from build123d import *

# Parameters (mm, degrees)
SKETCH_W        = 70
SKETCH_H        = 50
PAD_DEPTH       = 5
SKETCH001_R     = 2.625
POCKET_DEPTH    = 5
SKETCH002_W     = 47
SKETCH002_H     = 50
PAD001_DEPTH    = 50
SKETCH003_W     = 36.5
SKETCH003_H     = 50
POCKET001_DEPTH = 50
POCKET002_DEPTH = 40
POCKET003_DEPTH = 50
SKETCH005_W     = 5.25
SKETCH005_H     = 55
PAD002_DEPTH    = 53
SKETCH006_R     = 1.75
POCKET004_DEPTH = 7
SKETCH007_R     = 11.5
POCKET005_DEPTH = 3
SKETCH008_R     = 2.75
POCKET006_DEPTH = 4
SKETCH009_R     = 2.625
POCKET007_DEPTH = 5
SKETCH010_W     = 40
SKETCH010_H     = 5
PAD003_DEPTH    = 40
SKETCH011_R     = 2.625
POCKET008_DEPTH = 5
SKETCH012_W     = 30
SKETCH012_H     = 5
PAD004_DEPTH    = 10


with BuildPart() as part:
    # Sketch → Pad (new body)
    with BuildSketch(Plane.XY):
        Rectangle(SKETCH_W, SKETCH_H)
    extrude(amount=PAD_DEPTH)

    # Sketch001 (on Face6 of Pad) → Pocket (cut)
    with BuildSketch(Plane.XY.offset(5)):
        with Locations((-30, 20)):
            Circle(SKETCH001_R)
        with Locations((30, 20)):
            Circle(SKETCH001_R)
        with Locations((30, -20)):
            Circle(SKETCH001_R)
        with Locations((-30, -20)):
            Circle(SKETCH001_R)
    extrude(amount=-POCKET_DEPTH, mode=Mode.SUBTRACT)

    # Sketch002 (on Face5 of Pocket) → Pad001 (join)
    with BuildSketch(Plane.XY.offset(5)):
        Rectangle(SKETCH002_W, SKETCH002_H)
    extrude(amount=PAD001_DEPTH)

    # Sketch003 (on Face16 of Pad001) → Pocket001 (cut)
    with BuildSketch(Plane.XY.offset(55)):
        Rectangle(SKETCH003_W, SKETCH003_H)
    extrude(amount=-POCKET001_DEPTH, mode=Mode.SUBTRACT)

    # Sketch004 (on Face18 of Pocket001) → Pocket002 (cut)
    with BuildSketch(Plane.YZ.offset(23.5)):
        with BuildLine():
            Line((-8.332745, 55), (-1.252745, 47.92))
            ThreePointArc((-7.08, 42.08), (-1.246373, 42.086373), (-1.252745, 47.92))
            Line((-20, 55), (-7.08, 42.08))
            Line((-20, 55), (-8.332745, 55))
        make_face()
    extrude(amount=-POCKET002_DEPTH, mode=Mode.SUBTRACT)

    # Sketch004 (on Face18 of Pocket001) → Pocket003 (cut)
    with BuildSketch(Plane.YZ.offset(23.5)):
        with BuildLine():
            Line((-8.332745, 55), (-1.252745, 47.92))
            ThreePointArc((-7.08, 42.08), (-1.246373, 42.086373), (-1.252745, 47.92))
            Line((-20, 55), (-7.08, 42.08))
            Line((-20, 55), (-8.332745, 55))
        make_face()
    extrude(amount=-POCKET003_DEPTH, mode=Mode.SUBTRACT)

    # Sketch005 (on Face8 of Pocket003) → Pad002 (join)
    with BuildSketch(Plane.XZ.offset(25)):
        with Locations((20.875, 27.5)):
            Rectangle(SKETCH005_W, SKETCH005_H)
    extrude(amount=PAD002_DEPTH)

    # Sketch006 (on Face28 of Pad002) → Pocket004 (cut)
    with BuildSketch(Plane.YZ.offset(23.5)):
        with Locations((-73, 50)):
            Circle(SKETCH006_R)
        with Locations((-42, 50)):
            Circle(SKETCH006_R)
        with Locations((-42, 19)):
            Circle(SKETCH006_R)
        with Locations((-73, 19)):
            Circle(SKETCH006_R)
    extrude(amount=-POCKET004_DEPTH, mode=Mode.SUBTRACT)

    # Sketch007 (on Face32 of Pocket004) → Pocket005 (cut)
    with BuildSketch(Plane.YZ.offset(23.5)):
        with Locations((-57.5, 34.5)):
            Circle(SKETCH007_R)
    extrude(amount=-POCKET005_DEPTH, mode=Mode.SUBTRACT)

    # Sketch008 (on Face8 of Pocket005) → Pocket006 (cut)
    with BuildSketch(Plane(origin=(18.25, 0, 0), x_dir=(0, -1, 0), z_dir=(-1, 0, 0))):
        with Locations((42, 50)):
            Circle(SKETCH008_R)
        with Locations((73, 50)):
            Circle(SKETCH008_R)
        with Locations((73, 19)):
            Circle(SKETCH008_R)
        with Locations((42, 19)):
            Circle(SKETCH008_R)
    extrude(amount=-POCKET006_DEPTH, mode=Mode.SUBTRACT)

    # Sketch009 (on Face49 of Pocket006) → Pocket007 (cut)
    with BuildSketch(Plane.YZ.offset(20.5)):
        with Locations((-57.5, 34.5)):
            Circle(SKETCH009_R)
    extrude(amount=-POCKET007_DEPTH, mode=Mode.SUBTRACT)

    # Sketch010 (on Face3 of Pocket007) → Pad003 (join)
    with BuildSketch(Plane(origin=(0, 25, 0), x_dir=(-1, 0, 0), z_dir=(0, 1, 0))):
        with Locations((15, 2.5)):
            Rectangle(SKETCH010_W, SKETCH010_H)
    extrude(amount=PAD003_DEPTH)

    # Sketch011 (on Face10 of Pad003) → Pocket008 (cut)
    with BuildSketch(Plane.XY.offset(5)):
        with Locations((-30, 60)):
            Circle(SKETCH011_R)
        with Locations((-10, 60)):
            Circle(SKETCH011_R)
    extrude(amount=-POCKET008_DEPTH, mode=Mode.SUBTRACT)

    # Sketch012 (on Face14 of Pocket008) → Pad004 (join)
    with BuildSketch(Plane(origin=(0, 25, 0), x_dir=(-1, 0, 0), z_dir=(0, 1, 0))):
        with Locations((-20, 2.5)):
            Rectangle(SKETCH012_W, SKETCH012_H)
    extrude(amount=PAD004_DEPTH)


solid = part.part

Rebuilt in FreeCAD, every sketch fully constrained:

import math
import FreeCAD as App
import Part
import Sketcher
from FreeCAD import Vector
Q = App.Units.Quantity


def add_polygon(sketch, points):
    """Adds a closed chain of lines whose ends are joined by coincident constraints."""
    first, n = sketch.GeometryCount, len(points)
    for a, b in zip(points, points[1:] + points[:1]):
        sketch.addGeometry(Part.LineSegment(App.Vector(*a, 0), App.Vector(*b, 0)), False)
    for i in range(n):
        sketch.addConstraint(Sketcher.Constraint("Coincident", first + i, 2, first + (i + 1) % n, 1))

doc = App.newDocument("Part")
body = doc.addObject("PartDesign::Body", "Body")

# Sketch on XY plane
sketch1 = body.newObject("Sketcher::SketchObject", "Sketch")
sketch1.AttachmentSupport = (doc.getObject("XY_Plane"), [""])
sketch1.MapMode = "FlatFace"
add_polygon(sketch1, [(-35, 25), (-35, -25), (35, -25), (35, 25)])  # lines 0-3
sketch1.addConstraint([
    Sketcher.Constraint("Vertical", 0),
    Sketcher.Constraint("Horizontal", 1),
    Sketcher.Constraint("Vertical", 2),
    Sketcher.Constraint("Horizontal", 3),
    Sketcher.Constraint("Symmetric", 0, 2, 2, 2, -1, 1),
    Sketcher.Constraint("DistanceX", 1, 1, 1, 2, 70.0),
    Sketcher.Constraint("DistanceY", 0, 2, 0, 1, 50.0),
])
pad1 = body.newObject("PartDesign::Pad", "Pad")
pad1.Profile = sketch1
pad1.Length = 5

# Sketch on XY plane
sketch2 = body.newObject("Sketcher::SketchObject", "Sketch001")
sketch2.AttachmentSupport = (doc.getObject("XY_Plane"), [""])
sketch2.MapMode = "FlatFace"
sketch2.AttachmentOffset = App.Placement(Vector(0, 0, 5), App.Rotation())
sketch2.addGeometry([
    Part.Circle(Vector(-30, 20, 0), Vector(0, 0, 1), 2.6),
    Part.Circle(Vector(30, 20, 0), Vector(0, 0, 1), 2.6),
    Part.Circle(Vector(30, -20, 0), Vector(0, 0, 1), 2.6),
    Part.Circle(Vector(-30, -20, 0), Vector(0, 0, 1), 2.6),
], False)
sketch2.addConstraint([
    Sketcher.Constraint("Equal", 0, 1),
    Sketcher.Constraint("Equal", 1, 2),
    Sketcher.Constraint("Equal", 2, 3),
    Sketcher.Constraint("Symmetric", 0, 3, 2, 3, -1, 1),
    Sketcher.Constraint("Symmetric", 1, 3, 3, 3, -1, 1),
    Sketcher.Constraint("Symmetric", 0, 3, 1, 3, -2),
    Sketcher.Constraint("Diameter", 0, 5.25),
    Sketcher.Constraint("DistanceX", 0, 3, -1, 1, 30.0),
    Sketcher.Constraint("DistanceY", -1, 1, 0, 3, 20.0),
])
pocket1 = body.newObject("PartDesign::Pocket", "Pocket")
pocket1.Profile = sketch2
pocket1.Length = 5

# Sketch on XY plane
sketch3 = body.newObject("Sketcher::SketchObject", "Sketch002")
sketch3.AttachmentSupport = (doc.getObject("XY_Plane"), [""])
sketch3.MapMode = "FlatFace"
sketch3.AttachmentOffset = App.Placement(Vector(0, 0, 5), App.Rotation())
add_polygon(sketch3, [(-24, 25), (-24, -25), (24, -25), (24, 25)])  # lines 0-3
sketch3.addConstraint([
    Sketcher.Constraint("Vertical", 0),
    Sketcher.Constraint("Horizontal", 1),
    Sketcher.Constraint("Vertical", 2),
    Sketcher.Constraint("Horizontal", 3),
    Sketcher.Constraint("Symmetric", 0, 2, 2, 2, -1, 1),
    Sketcher.Constraint("DistanceX", 1, 1, 1, 2, 47.0),
    Sketcher.Constraint("DistanceY", 0, 2, 0, 1, 50.0),
])
pad2 = body.newObject("PartDesign::Pad", "Pad001")
pad2.Profile = sketch3
pad2.Length = 50

# Sketch on XY plane
sketch4 = body.newObject("Sketcher::SketchObject", "Sketch003")
sketch4.AttachmentSupport = (doc.getObject("XY_Plane"), [""])
sketch4.MapMode = "FlatFace"
sketch4.AttachmentOffset = App.Placement(Vector(0, 0, 55), App.Rotation())
add_polygon(sketch4, [(-18, 25), (-18, -25), (18, -25), (18, 25)])  # lines 0-3
sketch4.addConstraint([
    Sketcher.Constraint("Vertical", 0),
    Sketcher.Constraint("Horizontal", 1),
    Sketcher.Constraint("Vertical", 2),
    Sketcher.Constraint("Horizontal", 3),
    Sketcher.Constraint("Symmetric", 0, 2, 2, 2, -1, 1),
    Sketcher.Constraint("DistanceY", 0, 2, 0, 1, 50.0),
    Sketcher.Constraint("DistanceX", 1, 1, 1, 2, 36.5),
])
pocket2 = body.newObject("PartDesign::Pocket", "Pocket001")
pocket2.Profile = sketch4
pocket2.Length = 50

# Sketch on YZ plane
sketch5 = body.newObject("Sketcher::SketchObject", "Sketch004")
sketch5.AttachmentSupport = (doc.getObject("YZ_Plane"), [""])
sketch5.MapMode = "FlatFace"
sketch5.AttachmentOffset = App.Placement(Vector(0, 0, 23.5), App.Rotation())
sketch5.addGeometry([
    Part.LineSegment(Vector(-1.3, 47.9, 0), Vector(-8.3, 55, 0)),
    Part.LineSegment(Vector(-8.3, 55, 0), Vector(-20, 55, 0)),
    Part.LineSegment(Vector(-20, 55, 0), Vector(-7.1, 42.1, 0)),
    Part.ArcOfCircle(Part.Circle(Vector(-4.2, 45, 0), Vector(0, 0, 1), 4.1), math.radians(-135), math.radians(45)),
], False)
sketch5.addConstraint([
    Sketcher.Constraint("Coincident", 0, 2, 1, 1),
    Sketcher.Constraint("Coincident", 1, 2, 2, 1),
    Sketcher.Constraint("Coincident", 2, 2, 3, 1),
    Sketcher.Constraint("Coincident", 3, 2, 0, 1),
    Sketcher.Constraint("Horizontal", 1),
    Sketcher.Constraint("Parallel", 0, 2),
    Sketcher.Constraint("Angle", 0, Q("135 deg")),
    Sketcher.Constraint("DistanceY", -1, 1, 3, 3, 45.0),
    Sketcher.Constraint("DistanceY", -1, 1, 0, 2, 55.0),
    Sketcher.Constraint("DistanceX", 1, 2, -1, 1, 20.0),
    Sketcher.Constraint("Radius", 3, 4.125),
    Sketcher.Constraint("DistanceX", 2, 2, -1, 1, 7.08),
    Sketcher.Constraint("DistanceY", -1, 1, 3, 2, 47.92),
])
pocket3 = body.newObject("PartDesign::Pocket", "Pocket002")
pocket3.Profile = sketch5
pocket3.Length = 40

# Sketch on YZ plane
sketch6 = body.newObject("Sketcher::SketchObject", "Sketch005")
sketch6.AttachmentSupport = (doc.getObject("YZ_Plane"), [""])
sketch6.MapMode = "FlatFace"
sketch6.AttachmentOffset = App.Placement(Vector(0, 0, 23.5), App.Rotation())
sketch6.addGeometry([
    Part.LineSegment(Vector(-1.3, 47.9, 0), Vector(-8.3, 55, 0)),
    Part.LineSegment(Vector(-8.3, 55, 0), Vector(-20, 55, 0)),
    Part.LineSegment(Vector(-20, 55, 0), Vector(-7.1, 42.1, 0)),
    Part.ArcOfCircle(Part.Circle(Vector(-4.2, 45, 0), Vector(0, 0, 1), 4.1), math.radians(-135), math.radians(45)),
], False)
sketch6.addConstraint([
    Sketcher.Constraint("Coincident", 0, 2, 1, 1),
    Sketcher.Constraint("Coincident", 1, 2, 2, 1),
    Sketcher.Constraint("Coincident", 2, 2, 3, 1),
    Sketcher.Constraint("Coincident", 3, 2, 0, 1),
    Sketcher.Constraint("Horizontal", 1),
    Sketcher.Constraint("Parallel", 0, 2),
    Sketcher.Constraint("Angle", 0, Q("135 deg")),
    Sketcher.Constraint("DistanceY", -1, 1, 3, 3, 45.0),
    Sketcher.Constraint("DistanceY", -1, 1, 0, 2, 55.0),
    Sketcher.Constraint("DistanceX", 1, 2, -1, 1, 20.0),
    Sketcher.Constraint("Radius", 3, 4.125),
    Sketcher.Constraint("DistanceX", 2, 2, -1, 1, 7.08),
    Sketcher.Constraint("DistanceY", -1, 1, 3, 2, 47.92),
])
pocket4 = body.newObject("PartDesign::Pocket", "Pocket003")
pocket4.Profile = sketch6
pocket4.Length = 50

# Sketch on XZ plane
sketch7 = body.newObject("Sketcher::SketchObject", "Sketch006")
sketch7.AttachmentSupport = (doc.getObject("XZ_Plane"), [""])
sketch7.MapMode = "FlatFace"
sketch7.AttachmentOffset = App.Placement(Vector(0, 0, 25), App.Rotation())
add_polygon(sketch7, [(18, 55), (18, 0), (24, 0), (24, 55)])  # lines 0-3
sketch7.addConstraint([
    Sketcher.Constraint("Vertical", 0),
    Sketcher.Constraint("Horizontal", 1),
    Sketcher.Constraint("Vertical", 2),
    Sketcher.Constraint("Horizontal", 3),
    Sketcher.Constraint("PointOnObject", 0, 2, -1),
    Sketcher.Constraint("DistanceY", 0, 2, 0, 1, 55.0),
    Sketcher.Constraint("DistanceX", 1, 1, 1, 2, 5.25),
    Sketcher.Constraint("DistanceX", -1, 1, 1, 2, 23.5),
])
pad3 = body.newObject("PartDesign::Pad", "Pad002")
pad3.Profile = sketch7
pad3.Length = 53

# Sketch on YZ plane
sketch8 = body.newObject("Sketcher::SketchObject", "Sketch007")
sketch8.AttachmentSupport = (doc.getObject("YZ_Plane"), [""])
sketch8.MapMode = "FlatFace"
sketch8.AttachmentOffset = App.Placement(Vector(0, 0, 23.5), App.Rotation())
sketch8.addGeometry([
    Part.Circle(Vector(-73, 50, 0), Vector(0, 0, 1), 1.8),
    Part.Circle(Vector(-42, 50, 0), Vector(0, 0, 1), 1.8),
    Part.Circle(Vector(-42, 19, 0), Vector(0, 0, 1), 1.8),
    Part.Circle(Vector(-73, 19, 0), Vector(0, 0, 1), 1.8),
], False)
sketch8.addConstraint([
    Sketcher.Constraint("Equal", 0, 1),
    Sketcher.Constraint("Equal", 1, 2),
    Sketcher.Constraint("Equal", 2, 3),
    Sketcher.Constraint("Horizontal", 0, 3, 1, 3),
    Sketcher.Constraint("Horizontal", 2, 3, 3, 3),
    Sketcher.Constraint("Vertical", 1, 3, 2, 3),
    Sketcher.Constraint("Vertical", 0, 3, 3, 3),
    Sketcher.Constraint("Diameter", 0, 3.5),
    Sketcher.Constraint("DistanceX", 0, 3, -1, 1, 73.0),
    Sketcher.Constraint("DistanceY", -1, 1, 0, 3, 50.0),
    Sketcher.Constraint("DistanceX", 1, 3, -1, 1, 42.0),
    Sketcher.Constraint("DistanceY", -1, 1, 2, 3, 19.0),
])
pocket5 = body.newObject("PartDesign::Pocket", "Pocket004")
pocket5.Profile = sketch8
pocket5.Length = 7

# Sketch on YZ plane
sketch9 = body.newObject("Sketcher::SketchObject", "Sketch008")
sketch9.AttachmentSupport = (doc.getObject("YZ_Plane"), [""])
sketch9.MapMode = "FlatFace"
sketch9.AttachmentOffset = App.Placement(Vector(0, 0, 23.5), App.Rotation())
sketch9.addGeometry(Part.Circle(Vector(-58, 34, 0), Vector(0, 0, 1), 12), False)
sketch9.addConstraint([
    Sketcher.Constraint("Diameter", 0, 23.0),
    Sketcher.Constraint("DistanceX", 0, 3, -1, 1, 57.5),
    Sketcher.Constraint("DistanceY", -1, 1, 0, 3, 34.5),
])
pocket6 = body.newObject("PartDesign::Pocket", "Pocket005")
pocket6.Profile = sketch9
pocket6.Length = 3

# Sketch on YZ plane
sketch10 = body.newObject("Sketcher::SketchObject", "Sketch009")
sketch10.AttachmentSupport = (doc.getObject("YZ_Plane"), [""])
sketch10.MapMode = "FlatFace"
sketch10.AttachmentOffset = App.Placement(Vector(0, 0, 18.25), App.Rotation())
sketch10.addGeometry([
    Part.Circle(Vector(-42, 50, 0), Vector(0, 0, 1), 2.8),
    Part.Circle(Vector(-73, 50, 0), Vector(0, 0, 1), 2.8),
    Part.Circle(Vector(-73, 19, 0), Vector(0, 0, 1), 2.8),
    Part.Circle(Vector(-42, 19, 0), Vector(0, 0, 1), 2.8),
], False)
sketch10.addConstraint([
    Sketcher.Constraint("Equal", 0, 1),
    Sketcher.Constraint("Equal", 1, 2),
    Sketcher.Constraint("Equal", 2, 3),
    Sketcher.Constraint("Horizontal", 0, 3, 1, 3),
    Sketcher.Constraint("Horizontal", 2, 3, 3, 3),
    Sketcher.Constraint("Vertical", 1, 3, 2, 3),
    Sketcher.Constraint("Vertical", 0, 3, 3, 3),
    Sketcher.Constraint("Diameter", 0, 5.5),
    Sketcher.Constraint("DistanceX", 0, 3, -1, 1, 42.0),
    Sketcher.Constraint("DistanceY", -1, 1, 0, 3, 50.0),
    Sketcher.Constraint("DistanceX", 1, 3, -1, 1, 73.0),
    Sketcher.Constraint("DistanceY", -1, 1, 2, 3, 19.0),
])
pocket7 = body.newObject("PartDesign::Pocket", "Pocket006")
pocket7.Profile = sketch10
pocket7.Length = 4
pocket7.Reversed = True

# Sketch on YZ plane
sketch11 = body.newObject("Sketcher::SketchObject", "Sketch010")
sketch11.AttachmentSupport = (doc.getObject("YZ_Plane"), [""])
sketch11.MapMode = "FlatFace"
sketch11.AttachmentOffset = App.Placement(Vector(0, 0, 20.5), App.Rotation())
sketch11.addGeometry(Part.Circle(Vector(-57.5, 34.5, 0), Vector(0, 0, 1), 2.6), False)
sketch11.addConstraint([
    Sketcher.Constraint("Diameter", 0, 5.25),
    Sketcher.Constraint("DistanceX", 0, 3, -1, 1, 57.5),
    Sketcher.Constraint("DistanceY", -1, 1, 0, 3, 34.5),
])
pocket8 = body.newObject("PartDesign::Pocket", "Pocket007")
pocket8.Profile = sketch11
pocket8.Length = 5

# Sketch on XZ plane
sketch12 = body.newObject("Sketcher::SketchObject", "Sketch011")
sketch12.AttachmentSupport = (doc.getObject("XZ_Plane"), [""])
sketch12.MapMode = "FlatFace"
sketch12.AttachmentOffset = App.Placement(Vector(0, 0, -25), App.Rotation())
add_polygon(sketch12, [(5, 5), (5, 0), (-35, 0), (-35, 5)])  # lines 0-3
sketch12.addConstraint([
    Sketcher.Constraint("Vertical", 0),
    Sketcher.Constraint("Horizontal", 1),
    Sketcher.Constraint("Vertical", 2),
    Sketcher.Constraint("Horizontal", 3),
    Sketcher.Constraint("PointOnObject", 0, 2, -1),
    Sketcher.Constraint("DistanceX", 1, 2, 1, 1, 40.0),
    Sketcher.Constraint("DistanceY", 0, 2, 0, 1, 5.0),
    Sketcher.Constraint("DistanceX", -1, 1, 0, 2, 5.0),
])
pad4 = body.newObject("PartDesign::Pad", "Pad003")
pad4.Profile = sketch12
pad4.Length = 40
pad4.Reversed = True

# Sketch on XY plane
sketch13 = body.newObject("Sketcher::SketchObject", "Sketch012")
sketch13.AttachmentSupport = (doc.getObject("XY_Plane"), [""])
sketch13.MapMode = "FlatFace"
sketch13.AttachmentOffset = App.Placement(Vector(0, 0, 5), App.Rotation())
sketch13.addGeometry([
    Part.Circle(Vector(-30, 60, 0), Vector(0, 0, 1), 2.6),
    Part.Circle(Vector(-10, 60, 0), Vector(0, 0, 1), 2.6),
], False)
sketch13.addConstraint([
    Sketcher.Constraint("Equal", 0, 1),
    Sketcher.Constraint("Horizontal", 0, 3, 1, 3),
    Sketcher.Constraint("Diameter", 0, 5.25),
    Sketcher.Constraint("DistanceX", 0, 3, -1, 1, 30.0),
    Sketcher.Constraint("DistanceY", -1, 1, 0, 3, 60.0),
    Sketcher.Constraint("DistanceX", 1, 3, -1, 1, 10.0),
])
pocket9 = body.newObject("PartDesign::Pocket", "Pocket008")
pocket9.Profile = sketch13
pocket9.Length = 5

# Sketch on XZ plane
sketch14 = body.newObject("Sketcher::SketchObject", "Sketch013")
sketch14.AttachmentSupport = (doc.getObject("XZ_Plane"), [""])
sketch14.MapMode = "FlatFace"
sketch14.AttachmentOffset = App.Placement(Vector(0, 0, -25), App.Rotation())
add_polygon(sketch14, [(35, 5), (35, 0), (5, 0), (5, 5)])  # lines 0-3
sketch14.addConstraint([
    Sketcher.Constraint("Vertical", 0),
    Sketcher.Constraint("Horizontal", 1),
    Sketcher.Constraint("Vertical", 2),
    Sketcher.Constraint("Horizontal", 3),
    Sketcher.Constraint("PointOnObject", 0, 2, -1),
    Sketcher.Constraint("DistanceX", 1, 2, 1, 1, 30.0),
    Sketcher.Constraint("DistanceY", 0, 2, 0, 1, 5.0),
    Sketcher.Constraint("DistanceX", -1, 1, 0, 2, 35.0),
])
pad5 = body.newObject("PartDesign::Pad", "Pad004")
pad5.Profile = sketch14
pad5.Length = 10
pad5.Reversed = True

doc.recompute()
